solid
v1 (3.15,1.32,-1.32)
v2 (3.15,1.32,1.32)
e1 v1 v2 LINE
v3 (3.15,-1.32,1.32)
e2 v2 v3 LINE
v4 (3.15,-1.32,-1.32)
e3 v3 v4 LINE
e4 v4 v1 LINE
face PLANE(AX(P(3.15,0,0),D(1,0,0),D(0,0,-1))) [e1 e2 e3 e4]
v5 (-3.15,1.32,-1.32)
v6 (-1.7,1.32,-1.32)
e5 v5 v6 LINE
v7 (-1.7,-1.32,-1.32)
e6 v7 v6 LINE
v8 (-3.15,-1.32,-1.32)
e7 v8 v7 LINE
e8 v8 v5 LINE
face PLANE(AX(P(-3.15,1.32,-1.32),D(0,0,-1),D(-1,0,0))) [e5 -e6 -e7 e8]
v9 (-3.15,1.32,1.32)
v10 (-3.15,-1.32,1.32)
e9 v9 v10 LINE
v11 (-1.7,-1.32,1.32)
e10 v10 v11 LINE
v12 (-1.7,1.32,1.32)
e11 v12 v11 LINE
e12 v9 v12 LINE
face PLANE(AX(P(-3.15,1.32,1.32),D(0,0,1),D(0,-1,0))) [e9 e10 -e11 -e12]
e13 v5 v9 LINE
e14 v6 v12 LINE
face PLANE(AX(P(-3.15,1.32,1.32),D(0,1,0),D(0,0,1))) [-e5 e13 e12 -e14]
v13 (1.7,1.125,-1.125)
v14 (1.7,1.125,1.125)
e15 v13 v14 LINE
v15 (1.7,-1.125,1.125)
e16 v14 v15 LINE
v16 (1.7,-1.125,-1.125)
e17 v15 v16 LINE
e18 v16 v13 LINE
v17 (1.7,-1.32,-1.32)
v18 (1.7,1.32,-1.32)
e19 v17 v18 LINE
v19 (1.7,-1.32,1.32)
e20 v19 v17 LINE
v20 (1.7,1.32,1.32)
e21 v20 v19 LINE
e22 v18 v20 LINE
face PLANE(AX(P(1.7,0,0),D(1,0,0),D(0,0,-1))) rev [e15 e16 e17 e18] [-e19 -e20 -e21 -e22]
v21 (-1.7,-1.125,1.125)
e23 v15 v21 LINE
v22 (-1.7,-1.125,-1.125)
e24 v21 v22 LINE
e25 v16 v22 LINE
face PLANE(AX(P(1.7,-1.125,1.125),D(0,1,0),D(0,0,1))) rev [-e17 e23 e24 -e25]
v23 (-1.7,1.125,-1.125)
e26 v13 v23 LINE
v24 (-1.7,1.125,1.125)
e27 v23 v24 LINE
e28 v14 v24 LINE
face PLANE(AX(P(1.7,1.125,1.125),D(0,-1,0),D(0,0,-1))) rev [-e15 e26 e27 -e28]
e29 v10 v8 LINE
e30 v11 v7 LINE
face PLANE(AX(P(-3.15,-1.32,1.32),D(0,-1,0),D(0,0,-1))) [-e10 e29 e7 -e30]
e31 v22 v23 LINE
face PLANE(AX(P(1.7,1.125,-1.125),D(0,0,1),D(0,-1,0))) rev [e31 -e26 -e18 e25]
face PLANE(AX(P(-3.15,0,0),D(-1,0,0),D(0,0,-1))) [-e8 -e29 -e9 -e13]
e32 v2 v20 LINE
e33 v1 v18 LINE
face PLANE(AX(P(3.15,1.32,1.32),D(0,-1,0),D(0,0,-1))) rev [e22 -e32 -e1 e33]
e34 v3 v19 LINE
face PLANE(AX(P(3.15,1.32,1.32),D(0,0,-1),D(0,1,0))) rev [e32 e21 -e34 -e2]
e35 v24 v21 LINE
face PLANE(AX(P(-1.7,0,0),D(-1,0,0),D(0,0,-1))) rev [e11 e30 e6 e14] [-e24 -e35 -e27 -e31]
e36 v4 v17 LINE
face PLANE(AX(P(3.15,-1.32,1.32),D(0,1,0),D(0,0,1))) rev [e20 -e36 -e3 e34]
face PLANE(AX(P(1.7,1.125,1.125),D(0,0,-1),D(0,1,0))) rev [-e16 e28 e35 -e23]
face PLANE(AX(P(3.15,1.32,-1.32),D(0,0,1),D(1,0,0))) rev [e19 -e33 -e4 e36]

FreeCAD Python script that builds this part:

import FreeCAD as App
import Part
import Sketcher

V = App.Vector


def add_polygon(sketch, points):
    """Adds a closed chain of lines whose ends are joined by coincident constraints."""
    first, n = sketch.GeometryCount, len(points)
    for a, b in zip(points, points[1:] + points[:1]):
        sketch.addGeometry(Part.LineSegment(App.Vector(*a, 0), App.Vector(*b, 0)), False)
    for i in range(n):
        sketch.addConstraint(Sketcher.Constraint("Coincident", first + i, 2, first + (i + 1) % n, 1))

doc = App.newDocument("Part")
params = doc.addObject("Spreadsheet::Sheet", "Params")
for row, (alias, value) in enumerate([
    ("sketch1_width", "2.25 mm"),
    ("pad1_length", "3.4 mm"),
    ("sketch2_width", "2.64 mm"),
    ("pad2_length", "1.45 mm"),
], start=1):
    params.set(f"A{row}", alias)
    params.set(f"B{row}", "=" + value)
    params.setAlias(f"B{row}", alias)

body = doc.addObject("PartDesign::Body", "Body")

# Sketch on YZ plane
sketch1 = body.newObject("Sketcher::SketchObject", "Sketch")
sketch1.AttachmentSupport = (doc.getObject("YZ_Plane"), [""])
sketch1.MapMode = "FlatFace"
add_polygon(sketch1, [(1.125, 1.125), (-1.125, 1.125), (-1.125, -1.125), (1.125, -1.125)])  # lines 0-3
sketch1.addConstraint([
    Sketcher.Constraint("Horizontal", 0),
    Sketcher.Constraint("Vertical", 1),
    Sketcher.Constraint("Horizontal", 2),
    Sketcher.Constraint("Vertical", 3),
    Sketcher.Constraint("Symmetric", 0, 2, 2, 2, -1, 1),
    Sketcher.Constraint("Equal", 2, 1),
    Sketcher.Constraint("DistanceX", 0, 2, 0, 1, 2.25),
])
sketch1.setExpression("Constraints[10]", "Params.sketch1_width")
pad1 = body.newObject("PartDesign::Pad", "Pad")
pad1.Profile = sketch1
pad1.setExpression("Length", "Params.pad1_length")
pad1.Midplane = True

# Sketch on YZ plane
sketch2 = body.newObject("Sketcher::SketchObject", "Sketch001")
sketch2.AttachmentSupport = (doc.getObject("YZ_Plane"), [""])
sketch2.MapMode = "FlatFace"
sketch2.AttachmentOffset = App.Placement(V(0, 0, 1.7), App.Rotation())
add_polygon(sketch2, [(1.32, 1.32), (-1.32, 1.32), (-1.32, -1.32), (1.32, -1.32)])  # lines 0-3
sketch2.addConstraint([
    Sketcher.Constraint("Horizontal", 0),
    Sketcher.Constraint("Vertical", 1),
    Sketcher.Constraint("Horizontal", 2),
    Sketcher.Constraint("Vertical", 3),
    Sketcher.Constraint("Symmetric", 0, 2, 2, 2, -1, 1),
    Sketcher.Constraint("Equal", 2, 1),
    Sketcher.Constraint("DistanceX", 0, 2, 0, 1, 2.64),
])
sketch2.setExpression("Constraints[10]", "Params.sketch2_width")
pad2 = body.newObject("PartDesign::Pad", "Pad001")
pad2.Profile = sketch2
pad2.setExpression("Length", "Params.pad2_length")
doc.recompute()

mirrored = body.newObject("PartDesign::Mirrored", "Mirrored")
mirrored.Originals = [pad2]
mirrored.MirrorPlane = (doc.getObject("YZ_Plane"), [""])
body.Tip = mirrored

doc.recompute()
